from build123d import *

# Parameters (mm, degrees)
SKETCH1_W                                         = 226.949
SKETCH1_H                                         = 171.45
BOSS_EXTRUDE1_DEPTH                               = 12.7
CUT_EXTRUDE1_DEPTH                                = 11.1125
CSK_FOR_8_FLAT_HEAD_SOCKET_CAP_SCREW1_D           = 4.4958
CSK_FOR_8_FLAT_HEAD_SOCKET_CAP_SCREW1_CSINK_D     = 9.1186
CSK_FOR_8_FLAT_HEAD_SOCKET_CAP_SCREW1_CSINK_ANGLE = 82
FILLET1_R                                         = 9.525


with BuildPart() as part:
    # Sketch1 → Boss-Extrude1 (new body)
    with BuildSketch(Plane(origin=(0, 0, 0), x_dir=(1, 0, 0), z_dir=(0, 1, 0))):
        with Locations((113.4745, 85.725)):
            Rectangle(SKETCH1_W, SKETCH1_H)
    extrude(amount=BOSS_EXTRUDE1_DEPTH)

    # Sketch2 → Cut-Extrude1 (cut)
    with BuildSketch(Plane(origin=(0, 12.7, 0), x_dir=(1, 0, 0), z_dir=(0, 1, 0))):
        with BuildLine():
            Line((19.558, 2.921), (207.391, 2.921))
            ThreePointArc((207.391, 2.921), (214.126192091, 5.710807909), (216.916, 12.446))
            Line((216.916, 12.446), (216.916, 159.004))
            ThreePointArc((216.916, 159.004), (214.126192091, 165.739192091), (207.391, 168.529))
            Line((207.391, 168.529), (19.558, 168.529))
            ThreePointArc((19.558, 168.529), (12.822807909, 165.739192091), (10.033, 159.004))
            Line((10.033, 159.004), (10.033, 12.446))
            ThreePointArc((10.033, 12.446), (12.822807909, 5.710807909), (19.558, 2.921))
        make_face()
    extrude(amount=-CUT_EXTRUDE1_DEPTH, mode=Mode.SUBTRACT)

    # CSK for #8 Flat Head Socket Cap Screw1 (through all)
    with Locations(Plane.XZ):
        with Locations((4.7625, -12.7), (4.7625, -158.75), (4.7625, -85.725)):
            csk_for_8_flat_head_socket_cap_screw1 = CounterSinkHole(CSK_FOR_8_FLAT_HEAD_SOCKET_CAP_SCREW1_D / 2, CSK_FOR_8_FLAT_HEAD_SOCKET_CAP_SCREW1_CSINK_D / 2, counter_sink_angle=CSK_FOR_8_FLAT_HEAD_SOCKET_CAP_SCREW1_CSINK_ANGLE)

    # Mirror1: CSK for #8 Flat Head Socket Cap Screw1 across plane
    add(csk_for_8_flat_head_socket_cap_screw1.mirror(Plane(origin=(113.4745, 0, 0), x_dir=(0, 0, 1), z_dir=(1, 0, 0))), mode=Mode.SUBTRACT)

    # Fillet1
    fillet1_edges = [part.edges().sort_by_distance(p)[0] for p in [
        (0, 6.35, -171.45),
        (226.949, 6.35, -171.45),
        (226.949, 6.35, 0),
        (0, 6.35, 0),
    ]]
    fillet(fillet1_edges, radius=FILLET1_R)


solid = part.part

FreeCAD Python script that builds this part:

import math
import FreeCAD as App
import Part
import Sketcher

V = App.Vector
Q = App.Units.Quantity


def edges_at(feature, points):
    """Names of the edges that pass closest to the given points."""
    edges = feature.Shape.Edges
    near = lambda p: min(range(len(edges)), key=lambda i: edges[i].distToShape(Part.Vertex(*p))[0])
    return sorted({f"Edge{near(p) + 1}" for p in points})


def add_polygon(sketch, points):
    """Adds a closed chain of lines whose ends are joined by coincident constraints."""
    first, n = sketch.GeometryCount, len(points)
    for a, b in zip(points, points[1:] + points[:1]):
        sketch.addGeometry(Part.LineSegment(App.Vector(*a, 0), App.Vector(*b, 0)), False)
    for i in range(n):
        sketch.addConstraint(Sketcher.Constraint("Coincident", first + i, 2, first + (i + 1) % n, 1))

doc = App.newDocument("Part")
body = doc.addObject("PartDesign::Body", "Body")

# Sketch on XZ plane
sketch1 = body.newObject("Sketcher::SketchObject", "Sketch")
sketch1.AttachmentSupport = (doc.getObject("XZ_Plane"), [""])
sketch1.MapMode = "FlatFace"
add_polygon(sketch1, [(0, -171.45), (0, 0), (226.949, 0), (226.949, -171.45)])  # lines 0-3
sketch1.addConstraint(Sketcher.Constraint("Vertical", 0))
sketch1.addConstraint(Sketcher.Constraint("Horizontal", 1))
sketch1.addConstraint(Sketcher.Constraint("Vertical", 2))
sketch1.addConstraint(Sketcher.Constraint("Horizontal", 3))
sketch1.addConstraint(Sketcher.Constraint("Coincident", 0, 2, -1, 1))
sketch1.addConstraint(Sketcher.Constraint("DistanceY", 0, 1, 0, 2, Q("6.75 in")))
sketch1.addConstraint(Sketcher.Constraint("DistanceX", 1, 1, 1, 2, Q("8.935 in")))
pad1 = body.newObject("PartDesign::Pad", "Pad")
pad1.Profile = sketch1
pad1.Length = Q("0.5 in")
pad1.Reversed = True

# Sketch on XZ plane
sketch2 = body.newObject("Sketcher::SketchObject", "Sketch001")
sketch2.AttachmentSupport = (doc.getObject("XZ_Plane"), [""])
sketch2.MapMode = "FlatFace"
sketch2.AttachmentOffset = App.Placement(V(0, 0, -0.5 * 25.4), App.Rotation())
sketch2.addGeometry(Part.LineSegment(V(19.558, -2.921, 0), V(207.391, -2.921, 0)), False)
sketch2.addGeometry(Part.ArcOfCircle(Part.Circle(V(207.391, -12.446, 0), V(0, 0, 1), 9.525), math.radians(0), math.radians(90)), False)
sketch2.addGeometry(Part.LineSegment(V(216.916, -12.446, 0), V(216.916, -159.004, 0)), False)
sketch2.addGeometry(Part.ArcOfCircle(Part.Circle(V(207.391, -159.004, 0), V(0, 0, 1), 9.525), math.radians(-90), math.radians(0)), False)
sketch2.addGeometry(Part.LineSegment(V(207.391, -168.529, 0), V(19.558, -168.529, 0)), False)
sketch2.addGeometry(Part.ArcOfCircle(Part.Circle(V(19.558, -159.004, 0), V(0, 0, 1), 9.525), math.radians(180), math.radians(270)), False)
sketch2.addGeometry(Part.LineSegment(V(10.033, -159.004, 0), V(10.033, -12.446, 0)), False)
sketch2.addGeometry(Part.ArcOfCircle(Part.Circle(V(19.558, -12.446, 0), V(0, 0, 1), 9.525), math.radians(90), math.radians(180)), False)
sketch2.addConstraint(Sketcher.Constraint("Tangent", 0, 2, 1, 2))
sketch2.addConstraint(Sketcher.Constraint("Tangent", 1, 1, 2, 1))
sketch2.addConstraint(Sketcher.Constraint("Tangent", 2, 2, 3, 2))
sketch2.addConstraint(Sketcher.Constraint("Tangent", 3, 1, 4, 1))
sketch2.addConstraint(Sketcher.Constraint("Tangent", 4, 2, 5, 2))
sketch2.addConstraint(Sketcher.Constraint("Tangent", 5, 1, 6, 1))
sketch2.addConstraint(Sketcher.Constraint("Tangent", 6, 2, 7, 2))
sketch2.addConstraint(Sketcher.Constraint("Tangent", 7, 1, 0, 1))
sketch2.addConstraint(Sketcher.Constraint("Horizontal", 0))
sketch2.addConstraint(Sketcher.Constraint("Vertical", 2))
sketch2.addConstraint(Sketcher.Constraint("Horizontal", 4))
sketch2.addConstraint(Sketcher.Constraint("Vertical", 6))
sketch2.addConstraint(Sketcher.Constraint("Equal", 1, 3))
sketch2.addConstraint(Sketcher.Constraint("Equal", 3, 5))
sketch2.addConstraint(Sketcher.Constraint("Equal", 5, 7))
sketch2.addConstraint(Sketcher.Constraint("Radius", 1, Q("0.375 in")))
sketch2.addConstraint(Sketcher.Constraint("DistanceY", 2, 2, 2, 1, Q("5.77 in")))
sketch2.addConstraint(Sketcher.Constraint("DistanceX", 0, 1, 0, 2, Q("7.395 in")))
sketch2.addConstraint(Sketcher.Constraint("DistanceY", 1, 3, -1, 1, Q("0.49 in")))
sketch2.addConstraint(Sketcher.Constraint("DistanceX", -1, 1, 5, 3, Q("0.77 in")))
pocket1 = body.newObject("PartDesign::Pocket", "Pocket")
pocket1.Profile = sketch2
pocket1.Length = Q("0.4375 in")
pocket1.Reversed = True

# Sketch on XZ plane
sketch3 = body.newObject("Sketcher::SketchObject", "Sketch002")
sketch3.AttachmentSupport = (doc.getObject("XZ_Plane"), [""])
sketch3.MapMode = "FlatFace"
sketch3.addGeometry(Part.Circle(V(4.7625, -12.7, 0), V(0, 0, 1), 2.2479), False)
sketch3.addGeometry(Part.Circle(V(4.7625, -158.75, 0), V(0, 0, 1), 2.2479), False)
sketch3.addGeometry(Part.Circle(V(4.7625, -85.725, 0), V(0, 0, 1), 2.2479), False)
sketch3.addConstraint(Sketcher.Constraint("Equal", 0, 1))
sketch3.addConstraint(Sketcher.Constraint("Equal", 1, 2))
sketch3.addConstraint(Sketcher.Constraint("Vertical", 0, 3, 1, 3))
sketch3.addConstraint(Sketcher.Constraint("Vertical", 1, 3, 2, 3))
sketch3.addConstraint(Sketcher.Constraint("Diameter", 0, Q("0.177 in")))
sketch3.addConstraint(Sketcher.Constraint("DistanceY", 0, 3, -1, 1, Q("0.5 in")))
sketch3.addConstraint(Sketcher.Constraint("DistanceY", 1, 3, -1, 1, Q("6.25 in")))
sketch3.addConstraint(Sketcher.Constraint("DistanceX", -1, 1, 0, 3, Q("0.1875 in")))
sketch3.addConstraint(Sketcher.Constraint("DistanceY", 2, 3, -1, 1, Q("3.375 in")))
doc.recompute()
hole = body.newObject("PartDesign::Hole", "Hole")
hole.Profile = sketch3
hole.ThreadType = "None"
hole.Diameter = Q("0.177 in")
hole.DepthType = "ThroughAll"
hole.HoleCutType = "Countersink"
hole.HoleCutDiameter = Q("0.359 in")
hole.HoleCutCountersinkAngle = 82
doc.recompute()

datumplane = body.newObject("PartDesign::Plane", "DatumPlane")
datumplane.AttachmentSupport = (doc.getObject("YZ_Plane"), [""])
datumplane.MapMode = "FlatFace"
datumplane.AttachmentOffset = App.Placement(V(0, 0, 4.4675 * 25.4), App.Rotation())
mirrored = body.newObject("PartDesign::Mirrored", "Mirrored")
mirrored.Originals = [hole]
mirrored.MirrorPlane = (datumplane, [""])
body.Tip = mirrored
doc.recompute()

fillet = body.newObject("PartDesign::Fillet", "Fillet")
fillet.Base = (mirrored, edges_at(mirrored, [
    (0, 6.35, -171.45),
    (226.949, 6.35, -171.45),
    (226.949, 6.35, 0),
    (0, 6.35, 0),
]))
fillet.Radius = Q("0.375 in")

doc.recompute()
